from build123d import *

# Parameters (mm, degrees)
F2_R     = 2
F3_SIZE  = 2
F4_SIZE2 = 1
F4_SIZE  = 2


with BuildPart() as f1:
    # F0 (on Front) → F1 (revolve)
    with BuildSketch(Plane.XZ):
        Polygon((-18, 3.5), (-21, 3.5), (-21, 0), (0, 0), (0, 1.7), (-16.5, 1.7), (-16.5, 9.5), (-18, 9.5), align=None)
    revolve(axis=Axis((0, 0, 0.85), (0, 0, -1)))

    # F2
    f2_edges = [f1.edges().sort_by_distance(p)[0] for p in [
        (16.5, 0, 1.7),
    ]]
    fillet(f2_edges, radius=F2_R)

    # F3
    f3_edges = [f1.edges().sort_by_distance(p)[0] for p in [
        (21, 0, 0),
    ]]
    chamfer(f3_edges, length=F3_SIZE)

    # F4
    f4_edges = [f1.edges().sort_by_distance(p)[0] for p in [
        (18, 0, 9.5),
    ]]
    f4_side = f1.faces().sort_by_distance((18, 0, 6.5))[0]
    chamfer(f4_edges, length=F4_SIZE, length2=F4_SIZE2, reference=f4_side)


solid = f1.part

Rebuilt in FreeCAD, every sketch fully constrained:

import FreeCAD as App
import Part
import Sketcher

V = App.Vector
Q = App.Units.Quantity


def edges_at(feature, points):
    """Names of the edges that pass closest to the given points."""
    edges = feature.Shape.Edges
    near = lambda p: min(range(len(edges)), key=lambda i: edges[i].distToShape(Part.Vertex(*p))[0])
    return sorted({f"Edge{near(p) + 1}" for p in points})

doc = App.newDocument("Part")
body = doc.addObject("PartDesign::Body", "Body")

# Sketch on XZ plane
sketch1 = body.newObject("Sketcher::SketchObject", "Sketch")
sketch1.AttachmentSupport = (doc.getObject("XZ_Plane"), [""])
sketch1.MapMode = "FlatFace"
sketch1.addGeometry(Part.LineSegment(V(-18, 3.5, 0), V(-21, 3.5, 0)), False)
sketch1.addGeometry(Part.LineSegment(V(-21, 3.5, 0), V(-21, 0, 0)), False)
sketch1.addGeometry(Part.LineSegment(V(-21, 0, 0), V(0, 0, 0)), False)
sketch1.addGeometry(Part.LineSegment(V(0, 0, 0), V(0, 1.7, 0)), False)
sketch1.addGeometry(Part.LineSegment(V(0, 1.7, 0), V(-16.5, 1.7, 0)), False)
sketch1.addGeometry(Part.LineSegment(V(-16.5, 1.7, 0), V(-16.5, 9.5, 0)), False)
sketch1.addGeometry(Part.LineSegment(V(-16.5, 9.5, 0), V(-18, 9.5, 0)), False)
sketch1.addGeometry(Part.LineSegment(V(-18, 9.5, 0), V(-18, 3.5, 0)), False)
sketch1.addConstraint(Sketcher.Constraint("Coincident", 0, 2, 1, 1))
sketch1.addConstraint(Sketcher.Constraint("Coincident", 1, 2, 2, 1))
sketch1.addConstraint(Sketcher.Constraint("Coincident", 2, 2, 3, 1))
sketch1.addConstraint(Sketcher.Constraint("Coincident", 3, 2, 4, 1))
sketch1.addConstraint(Sketcher.Constraint("Coincident", 4, 2, 5, 1))
sketch1.addConstraint(Sketcher.Constraint("Coincident", 5, 2, 6, 1))
sketch1.addConstraint(Sketcher.Constraint("Coincident", 6, 2, 7, 1))
sketch1.addConstraint(Sketcher.Constraint("Coincident", 7, 2, 0, 1))
sketch1.addConstraint(Sketcher.Constraint("Horizontal", 0))
sketch1.addConstraint(Sketcher.Constraint("Vertical", 1))
sketch1.addConstraint(Sketcher.Constraint("Horizontal", 2))
sketch1.addConstraint(Sketcher.Constraint("Vertical", 3))
sketch1.addConstraint(Sketcher.Constraint("Horizontal", 4))
sketch1.addConstraint(Sketcher.Constraint("Vertical", 5))
sketch1.addConstraint(Sketcher.Constraint("Horizontal", 6))
sketch1.addConstraint(Sketcher.Constraint("Vertical", 7))
sketch1.addConstraint(Sketcher.Constraint("Coincident", 2, 2, -1, 1))
sketch1.addConstraint(Sketcher.Constraint("DistanceX", 0, 2, 0, 1, Q("3 mm")))
sketch1.addConstraint(Sketcher.Constraint("DistanceX", 2, 1, 2, 2, Q("21 mm")))
sketch1.addConstraint(Sketcher.Constraint("DistanceY", 7, 2, 7, 1, Q("6 mm")))
sketch1.addConstraint(Sketcher.Constraint("DistanceX", 4, 2, 4, 1, Q("16.5 mm")))
sketch1.addConstraint(Sketcher.Constraint("DistanceY", 1, 2, 1, 1, Q("3.5 mm")))
sketch1.addConstraint(Sketcher.Constraint("DistanceY", 3, 1, 3, 2, Q("1.7 mm")))
revolution = body.newObject("PartDesign::Revolution", "Revolution")
revolution.Profile = sketch1
revolution.ReferenceAxis = (sketch1, ["V_Axis"])
revolution.Angle = 360
doc.recompute()

fillet = body.newObject("PartDesign::Fillet", "Fillet")
fillet.Base = (revolution, edges_at(revolution, [(16.5, 0, 1.7)]))
fillet.Radius = 2
doc.recompute()

chamfer = body.newObject("PartDesign::Chamfer", "Chamfer")
chamfer.Base = (fillet, edges_at(fillet, [(21, 0, 0)]))
chamfer.Size = 2
doc.recompute()

chamfer2 = body.newObject("PartDesign::Chamfer", "Chamfer001")
chamfer2.Base = (chamfer, edges_at(chamfer, [(18, 0, 9.5)]))
chamfer2.ChamferType = "Two distances"
chamfer2.Size = 2
chamfer2.Size2 = 1

doc.recompute()
